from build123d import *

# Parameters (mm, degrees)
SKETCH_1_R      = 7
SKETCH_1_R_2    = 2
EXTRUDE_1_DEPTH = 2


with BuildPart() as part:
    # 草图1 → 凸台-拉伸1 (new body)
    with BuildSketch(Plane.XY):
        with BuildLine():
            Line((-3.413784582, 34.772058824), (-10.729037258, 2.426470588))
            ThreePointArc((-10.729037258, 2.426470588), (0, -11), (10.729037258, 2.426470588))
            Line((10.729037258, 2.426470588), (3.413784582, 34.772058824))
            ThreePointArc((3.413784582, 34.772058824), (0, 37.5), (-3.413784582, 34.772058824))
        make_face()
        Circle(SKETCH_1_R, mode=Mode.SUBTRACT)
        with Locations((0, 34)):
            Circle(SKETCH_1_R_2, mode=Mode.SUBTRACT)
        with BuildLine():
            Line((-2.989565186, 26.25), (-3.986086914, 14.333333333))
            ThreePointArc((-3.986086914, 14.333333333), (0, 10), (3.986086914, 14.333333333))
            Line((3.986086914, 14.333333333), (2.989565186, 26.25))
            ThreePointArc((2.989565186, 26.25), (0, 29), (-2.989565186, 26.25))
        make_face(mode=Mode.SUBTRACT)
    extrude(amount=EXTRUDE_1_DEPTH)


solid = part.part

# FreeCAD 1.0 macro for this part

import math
import FreeCAD as App
import Part
import Sketcher
from FreeCAD import Vector

doc = App.newDocument("Part")
body = doc.addObject("PartDesign::Body", "Body")

sketch1 = body.newObject("Sketcher::SketchObject", "Sketch")
sketch1.AttachmentSupport = (doc.getObject("XY_Plane"), [""])
sketch1.MapMode = "FlatFace"
sketch1.addGeometry(Part.LineSegment(Vector(-3.4, 34.8, 0), Vector(-10.7, 2.4, 0)), False)
sketch1.addGeometry(Part.ArcOfCircle(Part.Circle(Vector(0, 0, 0), Vector(0, 0, 1), 11), math.radians(167), math.radians(373)), False)
sketch1.addGeometry(Part.LineSegment(Vector(10.7, 2.4, 0), Vector(3.4, 34.8, 0)), False)
sketch1.addGeometry(Part.ArcOfCircle(Part.Circle(Vector(0, 34, 0), Vector(0, 0, 1), 3.5), math.radians(13), math.radians(167)), False)
sketch1.addGeometry(Part.Circle(Vector(0, 0, 0), Vector(0, 0, 1), 7), False)
sketch1.addGeometry(Part.LineSegment(Vector(-4, 14.3, 0), Vector(-3, 26.2, 0)), False)
sketch1.addGeometry(Part.ArcOfCircle(Part.Circle(Vector(0, 26, 0), Vector(0, 0, 1), 3), math.radians(5), math.radians(175)), False)
sketch1.addGeometry(Part.LineSegment(Vector(3, 26.2, 0), Vector(4, 14.3, 0)), False)
sketch1.addGeometry(Part.ArcOfCircle(Part.Circle(Vector(0, 14, 0), Vector(0, 0, 1), 4), math.radians(175), math.radians(365)), False)
sketch1.addGeometry(Part.Circle(Vector(0, 34, 0), Vector(0, 0, 1), 2), False)
sketch1.addConstraint(Sketcher.Constraint("Tangent", 0, 2, 1, 1))
sketch1.addConstraint(Sketcher.Constraint("Tangent", 1, 2, 2, 1))
sketch1.addConstraint(Sketcher.Constraint("Tangent", 2, 2, 3, 1))
sketch1.addConstraint(Sketcher.Constraint("Tangent", 3, 2, 0, 1))
sketch1.addConstraint(Sketcher.Constraint("Tangent", 5, 2, 6, 2))
sketch1.addConstraint(Sketcher.Constraint("Tangent", 6, 1, 7, 1))
sketch1.addConstraint(Sketcher.Constraint("Tangent", 7, 2, 8, 2))
sketch1.addConstraint(Sketcher.Constraint("Tangent", 8, 1, 5, 1))
sketch1.addConstraint(Sketcher.Constraint("Coincident", 1, 3, -1, 1))
sketch1.addConstraint(Sketcher.Constraint("Coincident", 4, 3, -1, 1))
sketch1.addConstraint(Sketcher.Constraint("Coincident", 9, 3, 3, 3))
sketch1.addConstraint(Sketcher.Constraint("Symmetric", 5, 2, 6, 1, -2))
sketch1.addConstraint(Sketcher.Constraint("PointOnObject", 3, 3, -2))
sketch1.addConstraint(Sketcher.Constraint("Diameter", 4, 14.0))
sketch1.addConstraint(Sketcher.Constraint("Diameter", 9, 4.0))
sketch1.addConstraint(Sketcher.Constraint("Radius", 1, 11.0))
sketch1.addConstraint(Sketcher.Constraint("Radius", 6, 3.0))
sketch1.addConstraint(Sketcher.Constraint("Radius", 8, 4.0))
sketch1.addConstraint(Sketcher.Constraint("Radius", 3, 3.5))
sketch1.addConstraint(Sketcher.Constraint("DistanceY", -1, 1, 3, 3, 34.0))
sketch1.addConstraint(Sketcher.Constraint("DistanceY", -1, 1, 6, 3, 26.0))
sketch1.addConstraint(Sketcher.Constraint("DistanceY", -1, 1, 8, 3, 14.0))
pad1 = body.newObject("PartDesign::Pad", "Pad")
pad1.Profile = sketch1
pad1.Length = 2

doc.recompute()
